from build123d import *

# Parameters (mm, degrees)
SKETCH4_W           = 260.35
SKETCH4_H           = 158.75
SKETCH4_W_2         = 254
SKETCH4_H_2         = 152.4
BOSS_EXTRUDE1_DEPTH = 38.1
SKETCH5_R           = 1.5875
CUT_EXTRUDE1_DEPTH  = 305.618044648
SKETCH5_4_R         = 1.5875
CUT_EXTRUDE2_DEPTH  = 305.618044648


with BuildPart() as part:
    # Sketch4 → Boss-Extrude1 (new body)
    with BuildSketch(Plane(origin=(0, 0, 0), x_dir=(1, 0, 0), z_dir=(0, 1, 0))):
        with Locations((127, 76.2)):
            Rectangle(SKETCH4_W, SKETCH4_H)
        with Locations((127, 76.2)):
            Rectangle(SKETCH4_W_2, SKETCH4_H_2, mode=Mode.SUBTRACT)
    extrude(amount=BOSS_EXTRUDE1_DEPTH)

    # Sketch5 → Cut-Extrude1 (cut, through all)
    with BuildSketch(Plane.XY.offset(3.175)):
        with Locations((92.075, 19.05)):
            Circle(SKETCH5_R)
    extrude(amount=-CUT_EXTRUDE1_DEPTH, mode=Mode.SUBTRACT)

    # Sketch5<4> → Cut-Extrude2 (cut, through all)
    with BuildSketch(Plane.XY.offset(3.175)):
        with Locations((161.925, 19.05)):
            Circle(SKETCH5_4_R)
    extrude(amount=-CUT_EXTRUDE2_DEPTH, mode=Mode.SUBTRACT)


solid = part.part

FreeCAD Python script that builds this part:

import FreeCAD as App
import Part
import Sketcher

V = App.Vector
Q = App.Units.Quantity

doc = App.newDocument("Part")
params = doc.addObject("Spreadsheet::Sheet", "Params")
for row, (alias, value) in enumerate([
    ("sketch1_width", "10 in"),
    ("sketch1_height", "6 in"),
    ("sketch1_width2", "10.25 in"),
    ("sketch1_height2", "6.25 in"),
    ("pad1_length", "1.5 in"),
    ("sketch2_diameter", "0.125 in"),
    ("sketch3_diameter", "0.125 in"),
], start=1):
    params.set(f"A{row}", alias)
    params.set(f"B{row}", "=" + value)
    params.setAlias(f"B{row}", alias)

body = doc.addObject("PartDesign::Body", "Body")

sketch1 = doc.addObject("Sketcher::SketchObject", "Sketch")
body.addObject(sketch1)
sketch1.AttachmentSupport = (doc.XZ_Plane, [""])
sketch1.MapMode = "FlatFace"
sketch1.addGeometry(Part.LineSegment(V(-3, -156, 0), V(-3, 3, 0)), False)
sketch1.addGeometry(Part.LineSegment(V(-3, 3, 0), V(257, 3, 0)), False)
sketch1.addGeometry(Part.LineSegment(V(257, 3, 0), V(257, -156, 0)), False)
sketch1.addGeometry(Part.LineSegment(V(257, -156, 0), V(-3, -156, 0)), False)
sketch1.addGeometry(Part.LineSegment(V(254, 0, 0), V(0, 0, 0)), False)
sketch1.addGeometry(Part.LineSegment(V(0, 0, 0), V(0, -152, 0)), False)
sketch1.addGeometry(Part.LineSegment(V(0, -152, 0), V(254, -152, 0)), False)
sketch1.addGeometry(Part.LineSegment(V(254, -152, 0), V(254, 0, 0)), False)
sketch1.addConstraint(Sketcher.Constraint("Coincident", 0, 2, 1, 1))
sketch1.addConstraint(Sketcher.Constraint("Coincident", 1, 2, 2, 1))
sketch1.addConstraint(Sketcher.Constraint("Coincident", 2, 2, 3, 1))
sketch1.addConstraint(Sketcher.Constraint("Coincident", 3, 2, 0, 1))
sketch1.addConstraint(Sketcher.Constraint("Coincident", 4, 2, 5, 1))
sketch1.addConstraint(Sketcher.Constraint("Coincident", 5, 2, 6, 1))
sketch1.addConstraint(Sketcher.Constraint("Coincident", 6, 2, 7, 1))
sketch1.addConstraint(Sketcher.Constraint("Coincident", 7, 2, 4, 1))
sketch1.addConstraint(Sketcher.Constraint("Vertical", 0))
sketch1.addConstraint(Sketcher.Constraint("Horizontal", 1))
sketch1.addConstraint(Sketcher.Constraint("Vertical", 2))
sketch1.addConstraint(Sketcher.Constraint("Horizontal", 3))
sketch1.addConstraint(Sketcher.Constraint("Horizontal", 4))
sketch1.addConstraint(Sketcher.Constraint("Vertical", 5))
sketch1.addConstraint(Sketcher.Constraint("Horizontal", 6))
sketch1.addConstraint(Sketcher.Constraint("Vertical", 7))
sketch1.addConstraint(Sketcher.Constraint("Coincident", 4, 2, -1, 1))
sketch1.addConstraint(Sketcher.Constraint("DistanceX", 4, 2, 4, 1, Q("10 in")))
sketch1.addConstraint(Sketcher.Constraint("DistanceY", 5, 2, 5, 1, Q("6 in")))
sketch1.addConstraint(Sketcher.Constraint("DistanceX", 1, 1, 1, 2, Q("10.25 in")))
sketch1.addConstraint(Sketcher.Constraint("DistanceY", 0, 1, 0, 2, Q("6.25 in")))
sketch1.addConstraint(Sketcher.Constraint("DistanceX", 0, 2, -1, 1, Q("0.125 in")))
sketch1.addConstraint(Sketcher.Constraint("DistanceY", -1, 1, 0, 2, Q("0.125 in")))
sketch1.setExpression("Constraints[17]", "Params.sketch1_width")
sketch1.setExpression("Constraints[18]", "Params.sketch1_height")
sketch1.setExpression("Constraints[19]", "Params.sketch1_width2")
sketch1.setExpression("Constraints[20]", "Params.sketch1_height2")
pad1 = doc.addObject("PartDesign::Pad", "Pad")
body.addObject(pad1)
pad1.Profile = sketch1
pad1.setExpression("Length", "Params.pad1_length")
pad1.Reversed = True

sketch2 = doc.addObject("Sketcher::SketchObject", "Sketch001")
body.addObject(sketch2)
sketch2.AttachmentSupport = (doc.XY_Plane, [""])
sketch2.MapMode = "FlatFace"
sketch2.AttachmentOffset = App.Placement(V(0, 0, 0.125 * 25.4), App.Rotation())
sketch2.addGeometry(Part.Circle(V(92.1, 19.1, 0), V(0, 0, 1), 1.6), False)
sketch2.addConstraint(Sketcher.Constraint("Diameter", 0, Q("0.125 in")))
sketch2.addConstraint(Sketcher.Constraint("DistanceY", -1, 1, 0, 3, Q("0.75 in")))
sketch2.addConstraint(Sketcher.Constraint("DistanceX", -1, 1, 0, 3, Q("3.625 in")))
sketch2.setExpression("Constraints[0]", "Params.sketch2_diameter")
pocket1 = doc.addObject("PartDesign::Pocket", "Pocket")
body.addObject(pocket1)
pocket1.Profile = sketch2
pocket1.Type = "ThroughAll"

sketch3 = doc.addObject("Sketcher::SketchObject", "Sketch002")
body.addObject(sketch3)
sketch3.AttachmentSupport = (doc.XY_Plane, [""])
sketch3.MapMode = "FlatFace"
sketch3.AttachmentOffset = App.Placement(V(0, 0, 0.125 * 25.4), App.Rotation())
sketch3.addGeometry(Part.Circle(V(161.9, 19.1, 0), V(0, 0, 1), 1.6), False)
sketch3.addConstraint(Sketcher.Constraint("Diameter", 0, Q("0.125 in")))
sketch3.addConstraint(Sketcher.Constraint("DistanceY", -1, 1, 0, 3, Q("0.75 in")))
sketch3.addConstraint(Sketcher.Constraint("DistanceX", -1, 1, 0, 3, Q("6.375 in")))
sketch3.setExpression("Constraints[0]", "Params.sketch3_diameter")
pocket2 = doc.addObject("PartDesign::Pocket", "Pocket001")
body.addObject(pocket2)
pocket2.Profile = sketch3
pocket2.Type = "ThroughAll"

doc.recompute()
